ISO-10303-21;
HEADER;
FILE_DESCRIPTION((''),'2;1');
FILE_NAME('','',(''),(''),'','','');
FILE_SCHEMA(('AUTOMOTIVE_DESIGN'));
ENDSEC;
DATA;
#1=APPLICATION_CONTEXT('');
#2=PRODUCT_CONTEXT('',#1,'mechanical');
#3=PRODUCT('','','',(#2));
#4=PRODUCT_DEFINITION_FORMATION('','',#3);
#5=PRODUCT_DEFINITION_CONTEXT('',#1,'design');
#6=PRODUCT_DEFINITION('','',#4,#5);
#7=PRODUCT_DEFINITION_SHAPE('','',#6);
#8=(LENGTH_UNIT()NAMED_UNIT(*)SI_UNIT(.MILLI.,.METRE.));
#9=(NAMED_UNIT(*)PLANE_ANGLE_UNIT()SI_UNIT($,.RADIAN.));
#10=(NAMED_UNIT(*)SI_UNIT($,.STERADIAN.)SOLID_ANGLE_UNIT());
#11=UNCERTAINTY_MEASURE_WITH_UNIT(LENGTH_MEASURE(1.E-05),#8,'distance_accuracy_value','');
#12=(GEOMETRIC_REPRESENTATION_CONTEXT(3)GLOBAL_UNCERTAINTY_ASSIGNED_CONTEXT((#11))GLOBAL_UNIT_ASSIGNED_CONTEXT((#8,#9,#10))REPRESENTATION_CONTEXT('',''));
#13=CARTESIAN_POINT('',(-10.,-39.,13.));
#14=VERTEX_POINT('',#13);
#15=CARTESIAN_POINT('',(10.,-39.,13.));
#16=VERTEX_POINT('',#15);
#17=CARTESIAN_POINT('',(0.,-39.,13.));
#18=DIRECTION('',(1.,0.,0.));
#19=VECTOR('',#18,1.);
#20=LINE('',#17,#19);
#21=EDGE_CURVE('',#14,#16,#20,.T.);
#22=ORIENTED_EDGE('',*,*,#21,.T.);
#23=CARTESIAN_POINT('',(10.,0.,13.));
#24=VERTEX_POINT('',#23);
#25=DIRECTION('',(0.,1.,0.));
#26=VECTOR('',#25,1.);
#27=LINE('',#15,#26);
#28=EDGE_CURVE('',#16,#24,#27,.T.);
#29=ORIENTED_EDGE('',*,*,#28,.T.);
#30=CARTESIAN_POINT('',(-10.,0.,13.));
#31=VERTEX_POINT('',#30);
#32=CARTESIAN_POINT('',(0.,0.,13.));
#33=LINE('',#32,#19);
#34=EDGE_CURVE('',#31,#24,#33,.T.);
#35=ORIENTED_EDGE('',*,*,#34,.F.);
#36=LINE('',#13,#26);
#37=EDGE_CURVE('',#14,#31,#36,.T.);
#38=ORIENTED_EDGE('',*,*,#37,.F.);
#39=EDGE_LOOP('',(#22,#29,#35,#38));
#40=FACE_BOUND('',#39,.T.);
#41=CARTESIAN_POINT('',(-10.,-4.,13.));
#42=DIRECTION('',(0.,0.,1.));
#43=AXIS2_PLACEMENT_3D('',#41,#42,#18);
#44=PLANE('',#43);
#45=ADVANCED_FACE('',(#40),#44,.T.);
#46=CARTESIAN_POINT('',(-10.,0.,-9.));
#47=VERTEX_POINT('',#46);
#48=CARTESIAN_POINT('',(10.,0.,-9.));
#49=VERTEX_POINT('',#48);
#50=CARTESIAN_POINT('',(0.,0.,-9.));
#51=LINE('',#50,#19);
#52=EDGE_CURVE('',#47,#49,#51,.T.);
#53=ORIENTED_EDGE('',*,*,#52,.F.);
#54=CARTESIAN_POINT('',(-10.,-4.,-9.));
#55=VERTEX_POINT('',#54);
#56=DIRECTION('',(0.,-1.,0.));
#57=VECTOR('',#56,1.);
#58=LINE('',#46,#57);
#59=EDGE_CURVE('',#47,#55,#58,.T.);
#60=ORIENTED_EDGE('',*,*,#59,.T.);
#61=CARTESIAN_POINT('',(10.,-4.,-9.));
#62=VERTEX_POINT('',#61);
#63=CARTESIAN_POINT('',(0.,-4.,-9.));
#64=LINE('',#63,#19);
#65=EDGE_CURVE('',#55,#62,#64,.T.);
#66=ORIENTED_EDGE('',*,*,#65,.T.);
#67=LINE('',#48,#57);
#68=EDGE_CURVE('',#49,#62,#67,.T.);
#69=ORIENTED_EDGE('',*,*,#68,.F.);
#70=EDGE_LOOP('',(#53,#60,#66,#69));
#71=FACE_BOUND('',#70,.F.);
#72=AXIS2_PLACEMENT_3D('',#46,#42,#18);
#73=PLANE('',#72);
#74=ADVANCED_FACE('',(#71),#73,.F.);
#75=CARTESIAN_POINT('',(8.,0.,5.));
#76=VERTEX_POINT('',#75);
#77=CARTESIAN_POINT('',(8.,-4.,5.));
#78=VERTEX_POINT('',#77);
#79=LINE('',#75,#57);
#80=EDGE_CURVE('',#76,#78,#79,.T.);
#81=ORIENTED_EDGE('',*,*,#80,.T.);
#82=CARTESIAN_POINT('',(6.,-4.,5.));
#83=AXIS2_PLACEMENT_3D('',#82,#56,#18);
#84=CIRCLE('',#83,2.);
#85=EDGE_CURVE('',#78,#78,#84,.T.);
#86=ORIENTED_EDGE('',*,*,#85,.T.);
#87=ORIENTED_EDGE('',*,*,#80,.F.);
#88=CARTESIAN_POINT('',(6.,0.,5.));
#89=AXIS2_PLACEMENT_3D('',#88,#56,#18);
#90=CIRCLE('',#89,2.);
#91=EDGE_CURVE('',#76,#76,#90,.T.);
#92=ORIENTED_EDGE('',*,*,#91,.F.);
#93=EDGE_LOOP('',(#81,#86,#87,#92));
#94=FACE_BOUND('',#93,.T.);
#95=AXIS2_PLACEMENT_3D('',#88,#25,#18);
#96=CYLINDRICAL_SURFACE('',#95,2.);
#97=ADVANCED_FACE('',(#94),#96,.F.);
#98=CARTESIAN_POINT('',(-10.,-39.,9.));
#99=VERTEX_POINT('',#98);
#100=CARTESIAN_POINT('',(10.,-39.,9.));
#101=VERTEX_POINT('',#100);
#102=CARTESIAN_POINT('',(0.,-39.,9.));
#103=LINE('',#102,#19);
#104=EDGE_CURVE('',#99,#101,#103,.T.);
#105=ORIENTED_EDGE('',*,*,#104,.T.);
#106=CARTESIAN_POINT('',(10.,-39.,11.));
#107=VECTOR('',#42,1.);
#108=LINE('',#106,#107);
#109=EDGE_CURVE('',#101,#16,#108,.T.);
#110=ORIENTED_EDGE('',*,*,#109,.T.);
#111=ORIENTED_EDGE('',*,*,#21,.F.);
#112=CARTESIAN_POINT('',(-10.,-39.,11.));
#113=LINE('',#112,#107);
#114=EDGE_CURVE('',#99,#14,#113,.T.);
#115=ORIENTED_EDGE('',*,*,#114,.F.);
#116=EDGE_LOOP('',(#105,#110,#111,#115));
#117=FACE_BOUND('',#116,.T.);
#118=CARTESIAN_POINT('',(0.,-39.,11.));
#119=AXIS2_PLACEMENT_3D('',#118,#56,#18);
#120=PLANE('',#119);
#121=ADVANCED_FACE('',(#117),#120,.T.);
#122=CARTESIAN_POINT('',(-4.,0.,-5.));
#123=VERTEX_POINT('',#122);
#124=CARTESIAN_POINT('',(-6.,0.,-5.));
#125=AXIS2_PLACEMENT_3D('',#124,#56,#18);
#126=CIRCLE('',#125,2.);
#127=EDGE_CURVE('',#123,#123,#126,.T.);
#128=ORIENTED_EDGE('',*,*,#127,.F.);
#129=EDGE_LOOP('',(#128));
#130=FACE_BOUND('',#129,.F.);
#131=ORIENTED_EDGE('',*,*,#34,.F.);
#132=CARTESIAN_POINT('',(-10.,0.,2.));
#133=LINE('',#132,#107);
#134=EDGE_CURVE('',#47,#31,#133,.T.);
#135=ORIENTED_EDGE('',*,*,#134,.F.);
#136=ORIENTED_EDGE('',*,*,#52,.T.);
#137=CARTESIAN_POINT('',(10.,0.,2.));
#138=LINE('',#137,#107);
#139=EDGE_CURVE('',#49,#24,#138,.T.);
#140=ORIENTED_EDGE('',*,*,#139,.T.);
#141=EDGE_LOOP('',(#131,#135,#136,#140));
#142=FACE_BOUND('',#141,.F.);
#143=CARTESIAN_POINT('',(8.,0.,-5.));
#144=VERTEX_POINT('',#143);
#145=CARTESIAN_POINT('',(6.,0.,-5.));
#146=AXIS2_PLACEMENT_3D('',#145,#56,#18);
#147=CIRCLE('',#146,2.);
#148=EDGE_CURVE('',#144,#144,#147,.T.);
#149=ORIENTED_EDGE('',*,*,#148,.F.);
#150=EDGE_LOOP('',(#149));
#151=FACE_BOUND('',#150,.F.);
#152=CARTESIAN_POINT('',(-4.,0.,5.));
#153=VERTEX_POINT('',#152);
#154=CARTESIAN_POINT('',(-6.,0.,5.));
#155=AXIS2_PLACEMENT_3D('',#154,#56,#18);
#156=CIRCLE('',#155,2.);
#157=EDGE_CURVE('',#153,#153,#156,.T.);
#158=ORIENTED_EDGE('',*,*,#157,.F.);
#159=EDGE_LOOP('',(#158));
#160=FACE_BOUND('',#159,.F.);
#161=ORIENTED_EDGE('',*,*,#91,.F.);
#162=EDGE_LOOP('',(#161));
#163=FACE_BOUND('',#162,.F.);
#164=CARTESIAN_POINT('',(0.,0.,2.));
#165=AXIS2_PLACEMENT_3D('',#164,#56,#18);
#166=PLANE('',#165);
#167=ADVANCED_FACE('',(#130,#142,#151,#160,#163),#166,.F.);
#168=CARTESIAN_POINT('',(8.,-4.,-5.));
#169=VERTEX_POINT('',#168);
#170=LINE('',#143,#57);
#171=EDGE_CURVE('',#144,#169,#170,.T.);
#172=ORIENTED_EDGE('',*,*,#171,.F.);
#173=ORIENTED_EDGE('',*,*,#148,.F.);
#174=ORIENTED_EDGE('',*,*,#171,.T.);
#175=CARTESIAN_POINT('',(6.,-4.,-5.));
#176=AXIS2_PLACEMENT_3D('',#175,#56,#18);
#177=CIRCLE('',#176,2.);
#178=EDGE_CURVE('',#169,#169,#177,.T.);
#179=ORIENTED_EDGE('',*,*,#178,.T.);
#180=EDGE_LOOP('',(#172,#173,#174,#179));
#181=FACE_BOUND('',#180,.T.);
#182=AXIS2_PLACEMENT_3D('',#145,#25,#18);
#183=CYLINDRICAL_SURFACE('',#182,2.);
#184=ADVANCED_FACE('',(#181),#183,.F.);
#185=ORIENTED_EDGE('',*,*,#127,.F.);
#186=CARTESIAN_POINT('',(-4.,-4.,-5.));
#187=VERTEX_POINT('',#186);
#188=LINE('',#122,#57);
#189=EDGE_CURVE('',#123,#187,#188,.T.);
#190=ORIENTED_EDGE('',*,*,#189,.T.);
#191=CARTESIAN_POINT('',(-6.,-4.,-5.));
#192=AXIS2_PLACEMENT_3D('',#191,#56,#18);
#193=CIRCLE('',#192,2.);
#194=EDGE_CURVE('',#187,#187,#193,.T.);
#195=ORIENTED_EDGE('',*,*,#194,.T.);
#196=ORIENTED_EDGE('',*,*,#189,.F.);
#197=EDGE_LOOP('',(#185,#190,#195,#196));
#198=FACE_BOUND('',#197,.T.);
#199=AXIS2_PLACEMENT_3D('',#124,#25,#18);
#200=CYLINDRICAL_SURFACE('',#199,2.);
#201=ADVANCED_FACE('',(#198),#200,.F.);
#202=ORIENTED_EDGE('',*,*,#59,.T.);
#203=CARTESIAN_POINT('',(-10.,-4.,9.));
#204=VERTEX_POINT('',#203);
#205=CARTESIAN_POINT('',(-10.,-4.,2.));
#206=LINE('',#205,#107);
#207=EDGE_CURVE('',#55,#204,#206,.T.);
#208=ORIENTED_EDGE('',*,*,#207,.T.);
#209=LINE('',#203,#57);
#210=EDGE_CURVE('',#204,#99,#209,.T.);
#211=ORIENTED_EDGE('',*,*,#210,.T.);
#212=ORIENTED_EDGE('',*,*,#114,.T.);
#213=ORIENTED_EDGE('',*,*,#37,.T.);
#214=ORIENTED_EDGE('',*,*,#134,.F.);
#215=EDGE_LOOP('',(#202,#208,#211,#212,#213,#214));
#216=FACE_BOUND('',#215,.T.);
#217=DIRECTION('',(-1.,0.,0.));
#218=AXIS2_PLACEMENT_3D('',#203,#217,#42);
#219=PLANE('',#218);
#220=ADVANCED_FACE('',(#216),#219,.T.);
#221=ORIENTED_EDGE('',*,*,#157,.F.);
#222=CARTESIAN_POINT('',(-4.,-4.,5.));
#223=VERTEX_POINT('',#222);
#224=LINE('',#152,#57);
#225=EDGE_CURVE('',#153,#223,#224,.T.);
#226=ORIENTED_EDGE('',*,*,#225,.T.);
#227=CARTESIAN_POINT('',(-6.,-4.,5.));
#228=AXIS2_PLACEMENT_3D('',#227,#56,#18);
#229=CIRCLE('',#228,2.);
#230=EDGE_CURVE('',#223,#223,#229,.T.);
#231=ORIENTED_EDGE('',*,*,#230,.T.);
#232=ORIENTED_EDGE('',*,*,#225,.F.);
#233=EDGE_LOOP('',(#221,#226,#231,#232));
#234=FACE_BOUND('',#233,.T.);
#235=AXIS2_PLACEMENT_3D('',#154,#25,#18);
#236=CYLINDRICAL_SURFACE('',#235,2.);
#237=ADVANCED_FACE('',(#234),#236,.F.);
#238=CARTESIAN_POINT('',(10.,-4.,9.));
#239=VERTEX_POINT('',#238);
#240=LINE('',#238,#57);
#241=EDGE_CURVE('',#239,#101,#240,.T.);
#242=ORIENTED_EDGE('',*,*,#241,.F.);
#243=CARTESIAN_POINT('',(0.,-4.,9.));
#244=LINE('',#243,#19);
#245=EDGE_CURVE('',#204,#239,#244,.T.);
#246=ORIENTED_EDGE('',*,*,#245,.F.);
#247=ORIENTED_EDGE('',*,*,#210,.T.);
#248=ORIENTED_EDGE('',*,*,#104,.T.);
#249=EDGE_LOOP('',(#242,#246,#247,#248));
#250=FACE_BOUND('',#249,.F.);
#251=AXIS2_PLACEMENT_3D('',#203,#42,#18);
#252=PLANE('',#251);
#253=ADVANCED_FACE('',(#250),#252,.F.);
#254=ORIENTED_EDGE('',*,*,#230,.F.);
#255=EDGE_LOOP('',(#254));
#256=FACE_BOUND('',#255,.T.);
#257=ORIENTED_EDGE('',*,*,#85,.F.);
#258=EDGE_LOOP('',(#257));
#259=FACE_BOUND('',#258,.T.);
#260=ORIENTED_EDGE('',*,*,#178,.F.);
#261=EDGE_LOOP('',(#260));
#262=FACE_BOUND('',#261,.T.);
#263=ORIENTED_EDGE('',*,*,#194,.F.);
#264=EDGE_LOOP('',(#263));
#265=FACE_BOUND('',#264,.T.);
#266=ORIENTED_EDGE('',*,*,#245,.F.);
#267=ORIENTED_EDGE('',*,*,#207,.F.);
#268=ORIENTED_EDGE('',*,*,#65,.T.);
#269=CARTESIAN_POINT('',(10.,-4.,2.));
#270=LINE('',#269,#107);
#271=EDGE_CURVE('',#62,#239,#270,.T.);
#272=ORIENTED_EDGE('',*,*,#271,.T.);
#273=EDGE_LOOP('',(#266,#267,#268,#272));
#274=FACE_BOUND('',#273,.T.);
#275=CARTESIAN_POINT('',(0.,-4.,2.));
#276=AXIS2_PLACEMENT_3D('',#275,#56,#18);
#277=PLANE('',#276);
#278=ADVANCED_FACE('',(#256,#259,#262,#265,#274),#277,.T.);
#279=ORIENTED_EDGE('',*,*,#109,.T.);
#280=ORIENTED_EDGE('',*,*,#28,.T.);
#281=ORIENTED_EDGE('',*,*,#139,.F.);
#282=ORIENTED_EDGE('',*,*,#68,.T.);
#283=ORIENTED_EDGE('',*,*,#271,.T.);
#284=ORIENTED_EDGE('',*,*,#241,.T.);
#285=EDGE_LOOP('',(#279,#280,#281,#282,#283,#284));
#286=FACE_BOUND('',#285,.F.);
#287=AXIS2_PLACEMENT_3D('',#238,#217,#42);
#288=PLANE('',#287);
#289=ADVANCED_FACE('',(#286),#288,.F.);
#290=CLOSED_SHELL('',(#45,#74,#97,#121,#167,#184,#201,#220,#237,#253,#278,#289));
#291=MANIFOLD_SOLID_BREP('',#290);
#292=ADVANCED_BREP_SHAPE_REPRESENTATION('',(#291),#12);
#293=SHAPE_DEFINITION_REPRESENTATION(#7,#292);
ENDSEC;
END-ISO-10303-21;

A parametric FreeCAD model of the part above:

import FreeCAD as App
import Part
import Sketcher


def add_polygon(sketch, points):
    """Adds a closed chain of lines whose ends are joined by coincident constraints."""
    first, n = sketch.GeometryCount, len(points)
    for a, b in zip(points, points[1:] + points[:1]):
        sketch.addGeometry(Part.LineSegment(App.Vector(*a, 0), App.Vector(*b, 0)), False)
    for i in range(n):
        sketch.addConstraint(Sketcher.Constraint("Coincident", first + i, 2, first + (i + 1) % n, 1))

doc = App.newDocument("Part")
body = doc.addObject("PartDesign::Body", "Body")

# Sketch on XZ plane
sketch1 = body.newObject("Sketcher::SketchObject", "Sketch")
sketch1.AttachmentSupport = (doc.getObject("XZ_Plane"), [""])
sketch1.MapMode = "FlatFace"
add_polygon(sketch1, [(-10, 13), (-10, -9), (10, -9), (10, 13)])  # lines 0-3
sketch1.addGeometry(Part.Circle(App.Vector(-6, -5, 0), App.Vector(0, 0, 1), 2), False)  # 4
sketch1.addGeometry(Part.Circle(App.Vector(6, -5, 0), App.Vector(0, 0, 1), 2), False)  # 5
sketch1.addGeometry(Part.Circle(App.Vector(-6, 5, 0), App.Vector(0, 0, 1), 2), False)  # 6
sketch1.addGeometry(Part.Circle(App.Vector(6, 5, 0), App.Vector(0, 0, 1), 2), False)  # 7
sketch1.addConstraint(Sketcher.Constraint("Vertical", 0))
sketch1.addConstraint(Sketcher.Constraint("Horizontal", 1))
sketch1.addConstraint(Sketcher.Constraint("Vertical", 2))
sketch1.addConstraint(Sketcher.Constraint("Horizontal", 3))
sketch1.addConstraint(Sketcher.Constraint("Equal", 4, 5))
sketch1.addConstraint(Sketcher.Constraint("Equal", 5, 6))
sketch1.addConstraint(Sketcher.Constraint("Equal", 6, 7))
sketch1.addConstraint(Sketcher.Constraint("Symmetric", 5, 3, 6, 3, -1, 1))
sketch1.addConstraint(Sketcher.Constraint("Symmetric", 4, 3, 7, 3, -1, 1))
sketch1.addConstraint(Sketcher.Constraint("Symmetric", 4, 3, 5, 3, -2))
sketch1.addConstraint(Sketcher.Constraint("Diameter", 4, 4.0))
sketch1.addConstraint(Sketcher.Constraint("DistanceX", 1, 1, 1, 2, 20.0))
sketch1.addConstraint(Sketcher.Constraint("DistanceY", 0, 2, 0, 1, 22.0))
sketch1.addConstraint(Sketcher.Constraint("DistanceX", 4, 3, -1, 1, 6.0))
sketch1.addConstraint(Sketcher.Constraint("DistanceY", 4, 3, -1, 1, 5.0))
sketch1.addConstraint(Sketcher.Constraint("DistanceX", 0, 2, -1, 1, 10.0))
sketch1.addConstraint(Sketcher.Constraint("DistanceY", 0, 2, -1, 1, 9.0))
pad1 = body.newObject("PartDesign::Pad", "Pad")
pad1.Profile = sketch1
pad1.Length = 4

# Sketch on XZ plane
sketch2 = body.newObject("Sketcher::SketchObject", "Sketch001")
sketch2.AttachmentSupport = (doc.getObject("XZ_Plane"), [""])
sketch2.MapMode = "FlatFace"
sketch2.AttachmentOffset = App.Placement(App.Vector(0, 0, 4), App.Rotation())
add_polygon(sketch2, [(-10, 13), (-10, 9), (10, 9), (10, 13)])  # lines 0-3
sketch2.addConstraint(Sketcher.Constraint("Vertical", 0))
sketch2.addConstraint(Sketcher.Constraint("Horizontal", 1))
sketch2.addConstraint(Sketcher.Constraint("Vertical", 2))
sketch2.addConstraint(Sketcher.Constraint("Horizontal", 3))
sketch2.addConstraint(Sketcher.Constraint("DistanceX", 1, 1, 1, 2, 20.0))
sketch2.addConstraint(Sketcher.Constraint("DistanceY", 0, 2, 0, 1, 4.0))
sketch2.addConstraint(Sketcher.Constraint("DistanceX", 0, 2, -1, 1, 10.0))
sketch2.addConstraint(Sketcher.Constraint("DistanceY", -1, 1, 0, 2, 9.0))
pad2 = body.newObject("PartDesign::Pad", "Pad001")
pad2.Profile = sketch2
pad2.Length = 35

doc.recompute()
